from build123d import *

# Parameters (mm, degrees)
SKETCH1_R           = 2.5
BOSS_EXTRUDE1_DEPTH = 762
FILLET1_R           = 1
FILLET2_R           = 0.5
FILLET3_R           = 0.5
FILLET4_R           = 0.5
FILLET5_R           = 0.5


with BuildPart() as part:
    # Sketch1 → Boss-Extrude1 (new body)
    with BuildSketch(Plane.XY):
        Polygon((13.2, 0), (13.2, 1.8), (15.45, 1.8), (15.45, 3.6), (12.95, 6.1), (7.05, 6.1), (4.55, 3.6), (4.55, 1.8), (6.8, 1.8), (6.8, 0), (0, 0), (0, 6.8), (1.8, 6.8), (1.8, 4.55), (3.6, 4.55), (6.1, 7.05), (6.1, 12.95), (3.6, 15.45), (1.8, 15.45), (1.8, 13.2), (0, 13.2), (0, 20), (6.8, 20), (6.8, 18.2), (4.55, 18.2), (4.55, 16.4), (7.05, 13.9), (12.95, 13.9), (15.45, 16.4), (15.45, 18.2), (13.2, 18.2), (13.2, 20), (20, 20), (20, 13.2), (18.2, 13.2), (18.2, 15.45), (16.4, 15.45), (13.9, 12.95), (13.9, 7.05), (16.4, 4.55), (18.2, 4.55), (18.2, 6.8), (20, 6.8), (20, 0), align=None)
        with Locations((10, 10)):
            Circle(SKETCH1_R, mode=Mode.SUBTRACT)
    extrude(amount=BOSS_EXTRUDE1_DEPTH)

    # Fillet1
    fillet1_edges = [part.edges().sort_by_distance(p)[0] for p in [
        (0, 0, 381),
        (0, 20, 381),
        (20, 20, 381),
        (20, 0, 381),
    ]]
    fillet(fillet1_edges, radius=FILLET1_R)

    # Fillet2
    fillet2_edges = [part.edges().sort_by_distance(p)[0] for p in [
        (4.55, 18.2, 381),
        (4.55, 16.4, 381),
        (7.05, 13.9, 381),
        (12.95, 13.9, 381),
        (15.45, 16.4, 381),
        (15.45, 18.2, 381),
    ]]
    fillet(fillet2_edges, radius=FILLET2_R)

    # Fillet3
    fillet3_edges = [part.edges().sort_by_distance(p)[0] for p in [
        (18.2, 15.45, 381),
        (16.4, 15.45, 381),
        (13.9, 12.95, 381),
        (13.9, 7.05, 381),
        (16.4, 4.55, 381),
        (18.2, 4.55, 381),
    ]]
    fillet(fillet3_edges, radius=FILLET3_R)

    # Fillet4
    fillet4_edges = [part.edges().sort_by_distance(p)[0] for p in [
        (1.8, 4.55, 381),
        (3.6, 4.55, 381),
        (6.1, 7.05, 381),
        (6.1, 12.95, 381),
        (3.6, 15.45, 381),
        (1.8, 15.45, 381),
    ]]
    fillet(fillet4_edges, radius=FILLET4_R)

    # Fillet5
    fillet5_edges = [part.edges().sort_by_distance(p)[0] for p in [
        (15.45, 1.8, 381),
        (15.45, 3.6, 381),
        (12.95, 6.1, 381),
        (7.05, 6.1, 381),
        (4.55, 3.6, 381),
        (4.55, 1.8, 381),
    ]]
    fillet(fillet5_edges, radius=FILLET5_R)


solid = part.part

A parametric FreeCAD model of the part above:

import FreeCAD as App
import Part
import Sketcher
Q = App.Units.Quantity


def edges_at(feature, points):
    """Names of the edges that pass closest to the given points."""
    edges = feature.Shape.Edges
    near = lambda p: min(range(len(edges)), key=lambda i: edges[i].distToShape(Part.Vertex(*p))[0])
    return sorted({f"Edge{near(p) + 1}" for p in points})


def add_polygon(sketch, points):
    """Adds a closed chain of lines whose ends are joined by coincident constraints."""
    first, n = sketch.GeometryCount, len(points)
    for a, b in zip(points, points[1:] + points[:1]):
        sketch.addGeometry(Part.LineSegment(App.Vector(*a, 0), App.Vector(*b, 0)), False)
    for i in range(n):
        sketch.addConstraint(Sketcher.Constraint("Coincident", first + i, 2, first + (i + 1) % n, 1))

doc = App.newDocument("Part")
params = doc.addObject("Spreadsheet::Sheet", "Params")
for row, (alias, value) in enumerate([
    ("sketch1_diameter", "5 mm"),
    ("sketch1_width", "6.8 mm"),
    ("sketch1_width2", "1.8 mm"),
    ("sketch1_width3", "5.9 mm"),
    ("sketch1_width4", "2.25 mm"),
    ("pad1_length", "762 mm"),
    ("fillet_radius", "1 mm"),
    ("fillet2_radius", "0.5 mm"),
    ("fillet3_radius", "0.5 mm"),
    ("fillet4_radius", "0.5 mm"),
    ("fillet5_radius", "0.5 mm"),
], start=1):
    params.set(f"A{row}", alias)
    params.set(f"B{row}", "=" + value)
    params.setAlias(f"B{row}", alias)

body = doc.addObject("PartDesign::Body", "Body")

# Sketch on XY plane
sketch1 = doc.addObject("Sketcher::SketchObject", "Sketch")
body.addObject(sketch1)
sketch1.AttachmentSupport = (doc.XY_Plane, [""])
sketch1.MapMode = "FlatFace"
add_polygon(sketch1, [(13.2, 1.8), (13.2, 0), (20, 0), (20, 6.8), (18.2, 6.8), (18.2, 4.5), (16.4, 4.5), (13.9, 7), (13.9, 12.9), (16.4, 15.4), (18.2, 15.4), (18.2, 13.2), (20, 13.2), (20, 20), (13.2, 20), (13.2, 18.2), (15.4, 18.2), (15.4, 16.4), (12.9, 13.9), (7, 13.9), (4.5, 16.4), (4.5, 18.2), (6.8, 18.2), (6.8, 20), (0, 20), (0, 13.2), (1.8, 13.2), (1.8, 15.4), (3.6, 15.4), (6.1, 12.9), (6.1, 7), (3.6, 4.5), (1.8, 4.5), (1.8, 6.8), (0, 6.8), (0, 0), (6.8, 0), (6.8, 1.8), (4.5, 1.8), (4.5, 3.6), (7, 6.1), (12.9, 6.1), (15.4, 3.6), (15.4, 1.8)])  # lines 0-43
sketch1.addGeometry(Part.Circle(App.Vector(10, 10, 0), App.Vector(0, 0, 1), 2.5), False)  # 44
sketch1.addConstraint([
    Sketcher.Constraint("Vertical", 0),
    Sketcher.Constraint("Horizontal", 1),
    Sketcher.Constraint("Vertical", 2),
    Sketcher.Constraint("Horizontal", 3),
    Sketcher.Constraint("Vertical", 4),
    Sketcher.Constraint("Horizontal", 5),
    Sketcher.Constraint("Vertical", 7),
    Sketcher.Constraint("Horizontal", 9),
    Sketcher.Constraint("Vertical", 10),
    Sketcher.Constraint("Horizontal", 11),
    Sketcher.Constraint("Vertical", 12),
    Sketcher.Constraint("Horizontal", 13),
    Sketcher.Constraint("Vertical", 14),
    Sketcher.Constraint("Horizontal", 15),
    Sketcher.Constraint("Vertical", 16),
    Sketcher.Constraint("Horizontal", 18),
    Sketcher.Constraint("Vertical", 20),
    Sketcher.Constraint("Horizontal", 21),
    Sketcher.Constraint("Vertical", 22),
    Sketcher.Constraint("Horizontal", 23),
    Sketcher.Constraint("Vertical", 24),
    Sketcher.Constraint("Horizontal", 25),
    Sketcher.Constraint("Vertical", 26),
    Sketcher.Constraint("Horizontal", 27),
    Sketcher.Constraint("Vertical", 29),
    Sketcher.Constraint("Horizontal", 31),
    Sketcher.Constraint("Vertical", 32),
    Sketcher.Constraint("Horizontal", 33),
    Sketcher.Constraint("Vertical", 34),
    Sketcher.Constraint("Horizontal", 35),
    Sketcher.Constraint("Vertical", 36),
    Sketcher.Constraint("Horizontal", 37),
    Sketcher.Constraint("Vertical", 38),
    Sketcher.Constraint("Horizontal", 40),
    Sketcher.Constraint("Vertical", 42),
    Sketcher.Constraint("Horizontal", 43),
    Sketcher.Constraint("Coincident", 34, 2, -1, 1),
    Sketcher.Constraint("PointOnObject", 0, 2, -1),
    Sketcher.Constraint("PointOnObject", 23, 2, -2),
    Sketcher.Constraint("Perpendicular", 6, 8),
    Sketcher.Constraint("Parallel", 8, 17),
    Sketcher.Constraint("Perpendicular", 17, 19),
    Sketcher.Constraint("Parallel", 19, 28),
    Sketcher.Constraint("Perpendicular", 28, 30),
    Sketcher.Constraint("Parallel", 30, 39),
    Sketcher.Constraint("Perpendicular", 39, 41),
    Sketcher.Constraint("Horizontal", 16, 2, 19, 2),
    Sketcher.Constraint("Horizontal", 15, 2, 20, 2),
    Sketcher.Constraint("Horizontal", 13, 2, 22, 2),
    Sketcher.Constraint("Horizontal", 11, 2, 24, 2),
    Sketcher.Constraint("Horizontal", 9, 2, 26, 2),
    Sketcher.Constraint("Horizontal", 7, 2, 28, 2),
    Sketcher.Constraint("Horizontal", 6, 2, 29, 2),
    Sketcher.Constraint("Horizontal", 5, 2, 30, 2),
    Sketcher.Constraint("Horizontal", 3, 2, 32, 2),
    Sketcher.Constraint("Horizontal", 38, 2, 41, 2),
    Sketcher.Constraint("Horizontal", 37, 2, 42, 2),
    Sketcher.Constraint("Vertical", 5, 2, 8, 2),
    Sketcher.Constraint("Vertical", 4, 2, 9, 2),
    Sketcher.Constraint("Vertical", 2, 2, 11, 2),
    Sketcher.Constraint("Vertical", 0, 2, 13, 2),
    Sketcher.Constraint("Vertical", 27, 2, 30, 2),
    Sketcher.Constraint("Vertical", 26, 2, 31, 2),
    Sketcher.Constraint("Vertical", 22, 2, 35, 2),
    Sketcher.Constraint("Vertical", 20, 2, 37, 2),
    Sketcher.Constraint("Vertical", 18, 2, 39, 2),
    Sketcher.Constraint("Vertical", 17, 2, 40, 2),
    Sketcher.Constraint("Equal", 3, 5),
    Sketcher.Constraint("Equal", 15, 21),
    Sketcher.Constraint("Equal", 13, 23),
    Sketcher.Constraint("Equal", 11, 25),
    Sketcher.Constraint("Equal", 25, 27),
    Sketcher.Constraint("Equal", 33, 0),
    Sketcher.Constraint("Equal", 35, 2),
    Sketcher.Constraint("Equal", 43, 4),
    Sketcher.Constraint("Equal", 40, 7),
    Sketcher.Constraint("Equal", 4, 10),
    Sketcher.Constraint("Equal", 2, 12),
    Sketcher.Constraint("Equal", 0, 14),
    Sketcher.Constraint("Equal", 14, 16),
    Sketcher.Constraint("Equal", 36, 38),
    Sketcher.Constraint("Equal", 8, 17),
    Sketcher.Constraint("Diameter", 44, Q("5 mm")),
    Sketcher.Constraint("DistanceX", 1, 1, 1, 2, Q("6.8 mm")),
    Sketcher.Constraint("DistanceX", 3, 2, 3, 1, Q("1.8 mm")),
    Sketcher.Constraint("DistanceX", 18, 2, 18, 1, Q("5.9 mm")),
    Sketcher.Constraint("DistanceX", -1, 1, 44, 3, Q("10 mm")),
    Sketcher.Constraint("DistanceY", -1, 1, 44, 3, Q("10 mm")),
    Sketcher.Constraint("DistanceX", -1, 1, 1, 2, Q("20 mm")),
    Sketcher.Constraint("DistanceX", 15, 1, 15, 2, Q("2.25 mm")),
])
sketch1.setExpression("Constraints[126]", "Params.sketch1_diameter")
sketch1.setExpression("Constraints[127]", "Params.sketch1_width")
sketch1.setExpression("Constraints[128]", "Params.sketch1_width2")
sketch1.setExpression("Constraints[129]", "Params.sketch1_width3")
sketch1.setExpression("Constraints[133]", "Params.sketch1_width4")
pad1 = doc.addObject("PartDesign::Pad", "Pad")
body.addObject(pad1)
pad1.Profile = sketch1
pad1.setExpression("Length", "Params.pad1_length")
doc.recompute()

fillet = doc.addObject("PartDesign::Fillet", "Fillet")
body.addObject(fillet)
fillet.Base = (pad1, edges_at(pad1, [
    (0, 0, 381),
    (0, 20, 381),
    (20, 20, 381),
    (20, 0, 381),
]))
fillet.setExpression("Radius", "Params.fillet_radius")
doc.recompute()

fillet2 = doc.addObject("PartDesign::Fillet", "Fillet001")
body.addObject(fillet2)
fillet2.Base = (fillet, edges_at(fillet, [
    (4.55, 18.2, 381),
    (4.55, 16.4, 381),
    (7.05, 13.9, 381),
    (12.95, 13.9, 381),
    (15.45, 16.4, 381),
    (15.45, 18.2, 381),
]))
fillet2.setExpression("Radius", "Params.fillet2_radius")
doc.recompute()

fillet3 = doc.addObject("PartDesign::Fillet", "Fillet002")
body.addObject(fillet3)
fillet3.Base = (fillet2, edges_at(fillet2, [
    (18.2, 15.45, 381),
    (16.4, 15.45, 381),
    (13.9, 12.95, 381),
    (13.9, 7.05, 381),
    (16.4, 4.55, 381),
    (18.2, 4.55, 381),
]))
fillet3.setExpression("Radius", "Params.fillet3_radius")
doc.recompute()

fillet4 = doc.addObject("PartDesign::Fillet", "Fillet003")
body.addObject(fillet4)
fillet4.Base = (fillet3, edges_at(fillet3, [
    (1.8, 4.55, 381),
    (3.6, 4.55, 381),
    (6.1, 7.05, 381),
    (6.1, 12.95, 381),
    (3.6, 15.45, 381),
    (1.8, 15.45, 381),
]))
fillet4.setExpression("Radius", "Params.fillet4_radius")
doc.recompute()

fillet5 = doc.addObject("PartDesign::Fillet", "Fillet004")
body.addObject(fillet5)
fillet5.Base = (fillet4, edges_at(fillet4, [
    (15.45, 1.8, 381),
    (15.45, 3.6, 381),
    (12.95, 6.1, 381),
    (7.05, 6.1, 381),
    (4.55, 3.6, 381),
    (4.55, 1.8, 381),
]))
fillet5.setExpression("Radius", "Params.fillet5_radius")

doc.recompute()
